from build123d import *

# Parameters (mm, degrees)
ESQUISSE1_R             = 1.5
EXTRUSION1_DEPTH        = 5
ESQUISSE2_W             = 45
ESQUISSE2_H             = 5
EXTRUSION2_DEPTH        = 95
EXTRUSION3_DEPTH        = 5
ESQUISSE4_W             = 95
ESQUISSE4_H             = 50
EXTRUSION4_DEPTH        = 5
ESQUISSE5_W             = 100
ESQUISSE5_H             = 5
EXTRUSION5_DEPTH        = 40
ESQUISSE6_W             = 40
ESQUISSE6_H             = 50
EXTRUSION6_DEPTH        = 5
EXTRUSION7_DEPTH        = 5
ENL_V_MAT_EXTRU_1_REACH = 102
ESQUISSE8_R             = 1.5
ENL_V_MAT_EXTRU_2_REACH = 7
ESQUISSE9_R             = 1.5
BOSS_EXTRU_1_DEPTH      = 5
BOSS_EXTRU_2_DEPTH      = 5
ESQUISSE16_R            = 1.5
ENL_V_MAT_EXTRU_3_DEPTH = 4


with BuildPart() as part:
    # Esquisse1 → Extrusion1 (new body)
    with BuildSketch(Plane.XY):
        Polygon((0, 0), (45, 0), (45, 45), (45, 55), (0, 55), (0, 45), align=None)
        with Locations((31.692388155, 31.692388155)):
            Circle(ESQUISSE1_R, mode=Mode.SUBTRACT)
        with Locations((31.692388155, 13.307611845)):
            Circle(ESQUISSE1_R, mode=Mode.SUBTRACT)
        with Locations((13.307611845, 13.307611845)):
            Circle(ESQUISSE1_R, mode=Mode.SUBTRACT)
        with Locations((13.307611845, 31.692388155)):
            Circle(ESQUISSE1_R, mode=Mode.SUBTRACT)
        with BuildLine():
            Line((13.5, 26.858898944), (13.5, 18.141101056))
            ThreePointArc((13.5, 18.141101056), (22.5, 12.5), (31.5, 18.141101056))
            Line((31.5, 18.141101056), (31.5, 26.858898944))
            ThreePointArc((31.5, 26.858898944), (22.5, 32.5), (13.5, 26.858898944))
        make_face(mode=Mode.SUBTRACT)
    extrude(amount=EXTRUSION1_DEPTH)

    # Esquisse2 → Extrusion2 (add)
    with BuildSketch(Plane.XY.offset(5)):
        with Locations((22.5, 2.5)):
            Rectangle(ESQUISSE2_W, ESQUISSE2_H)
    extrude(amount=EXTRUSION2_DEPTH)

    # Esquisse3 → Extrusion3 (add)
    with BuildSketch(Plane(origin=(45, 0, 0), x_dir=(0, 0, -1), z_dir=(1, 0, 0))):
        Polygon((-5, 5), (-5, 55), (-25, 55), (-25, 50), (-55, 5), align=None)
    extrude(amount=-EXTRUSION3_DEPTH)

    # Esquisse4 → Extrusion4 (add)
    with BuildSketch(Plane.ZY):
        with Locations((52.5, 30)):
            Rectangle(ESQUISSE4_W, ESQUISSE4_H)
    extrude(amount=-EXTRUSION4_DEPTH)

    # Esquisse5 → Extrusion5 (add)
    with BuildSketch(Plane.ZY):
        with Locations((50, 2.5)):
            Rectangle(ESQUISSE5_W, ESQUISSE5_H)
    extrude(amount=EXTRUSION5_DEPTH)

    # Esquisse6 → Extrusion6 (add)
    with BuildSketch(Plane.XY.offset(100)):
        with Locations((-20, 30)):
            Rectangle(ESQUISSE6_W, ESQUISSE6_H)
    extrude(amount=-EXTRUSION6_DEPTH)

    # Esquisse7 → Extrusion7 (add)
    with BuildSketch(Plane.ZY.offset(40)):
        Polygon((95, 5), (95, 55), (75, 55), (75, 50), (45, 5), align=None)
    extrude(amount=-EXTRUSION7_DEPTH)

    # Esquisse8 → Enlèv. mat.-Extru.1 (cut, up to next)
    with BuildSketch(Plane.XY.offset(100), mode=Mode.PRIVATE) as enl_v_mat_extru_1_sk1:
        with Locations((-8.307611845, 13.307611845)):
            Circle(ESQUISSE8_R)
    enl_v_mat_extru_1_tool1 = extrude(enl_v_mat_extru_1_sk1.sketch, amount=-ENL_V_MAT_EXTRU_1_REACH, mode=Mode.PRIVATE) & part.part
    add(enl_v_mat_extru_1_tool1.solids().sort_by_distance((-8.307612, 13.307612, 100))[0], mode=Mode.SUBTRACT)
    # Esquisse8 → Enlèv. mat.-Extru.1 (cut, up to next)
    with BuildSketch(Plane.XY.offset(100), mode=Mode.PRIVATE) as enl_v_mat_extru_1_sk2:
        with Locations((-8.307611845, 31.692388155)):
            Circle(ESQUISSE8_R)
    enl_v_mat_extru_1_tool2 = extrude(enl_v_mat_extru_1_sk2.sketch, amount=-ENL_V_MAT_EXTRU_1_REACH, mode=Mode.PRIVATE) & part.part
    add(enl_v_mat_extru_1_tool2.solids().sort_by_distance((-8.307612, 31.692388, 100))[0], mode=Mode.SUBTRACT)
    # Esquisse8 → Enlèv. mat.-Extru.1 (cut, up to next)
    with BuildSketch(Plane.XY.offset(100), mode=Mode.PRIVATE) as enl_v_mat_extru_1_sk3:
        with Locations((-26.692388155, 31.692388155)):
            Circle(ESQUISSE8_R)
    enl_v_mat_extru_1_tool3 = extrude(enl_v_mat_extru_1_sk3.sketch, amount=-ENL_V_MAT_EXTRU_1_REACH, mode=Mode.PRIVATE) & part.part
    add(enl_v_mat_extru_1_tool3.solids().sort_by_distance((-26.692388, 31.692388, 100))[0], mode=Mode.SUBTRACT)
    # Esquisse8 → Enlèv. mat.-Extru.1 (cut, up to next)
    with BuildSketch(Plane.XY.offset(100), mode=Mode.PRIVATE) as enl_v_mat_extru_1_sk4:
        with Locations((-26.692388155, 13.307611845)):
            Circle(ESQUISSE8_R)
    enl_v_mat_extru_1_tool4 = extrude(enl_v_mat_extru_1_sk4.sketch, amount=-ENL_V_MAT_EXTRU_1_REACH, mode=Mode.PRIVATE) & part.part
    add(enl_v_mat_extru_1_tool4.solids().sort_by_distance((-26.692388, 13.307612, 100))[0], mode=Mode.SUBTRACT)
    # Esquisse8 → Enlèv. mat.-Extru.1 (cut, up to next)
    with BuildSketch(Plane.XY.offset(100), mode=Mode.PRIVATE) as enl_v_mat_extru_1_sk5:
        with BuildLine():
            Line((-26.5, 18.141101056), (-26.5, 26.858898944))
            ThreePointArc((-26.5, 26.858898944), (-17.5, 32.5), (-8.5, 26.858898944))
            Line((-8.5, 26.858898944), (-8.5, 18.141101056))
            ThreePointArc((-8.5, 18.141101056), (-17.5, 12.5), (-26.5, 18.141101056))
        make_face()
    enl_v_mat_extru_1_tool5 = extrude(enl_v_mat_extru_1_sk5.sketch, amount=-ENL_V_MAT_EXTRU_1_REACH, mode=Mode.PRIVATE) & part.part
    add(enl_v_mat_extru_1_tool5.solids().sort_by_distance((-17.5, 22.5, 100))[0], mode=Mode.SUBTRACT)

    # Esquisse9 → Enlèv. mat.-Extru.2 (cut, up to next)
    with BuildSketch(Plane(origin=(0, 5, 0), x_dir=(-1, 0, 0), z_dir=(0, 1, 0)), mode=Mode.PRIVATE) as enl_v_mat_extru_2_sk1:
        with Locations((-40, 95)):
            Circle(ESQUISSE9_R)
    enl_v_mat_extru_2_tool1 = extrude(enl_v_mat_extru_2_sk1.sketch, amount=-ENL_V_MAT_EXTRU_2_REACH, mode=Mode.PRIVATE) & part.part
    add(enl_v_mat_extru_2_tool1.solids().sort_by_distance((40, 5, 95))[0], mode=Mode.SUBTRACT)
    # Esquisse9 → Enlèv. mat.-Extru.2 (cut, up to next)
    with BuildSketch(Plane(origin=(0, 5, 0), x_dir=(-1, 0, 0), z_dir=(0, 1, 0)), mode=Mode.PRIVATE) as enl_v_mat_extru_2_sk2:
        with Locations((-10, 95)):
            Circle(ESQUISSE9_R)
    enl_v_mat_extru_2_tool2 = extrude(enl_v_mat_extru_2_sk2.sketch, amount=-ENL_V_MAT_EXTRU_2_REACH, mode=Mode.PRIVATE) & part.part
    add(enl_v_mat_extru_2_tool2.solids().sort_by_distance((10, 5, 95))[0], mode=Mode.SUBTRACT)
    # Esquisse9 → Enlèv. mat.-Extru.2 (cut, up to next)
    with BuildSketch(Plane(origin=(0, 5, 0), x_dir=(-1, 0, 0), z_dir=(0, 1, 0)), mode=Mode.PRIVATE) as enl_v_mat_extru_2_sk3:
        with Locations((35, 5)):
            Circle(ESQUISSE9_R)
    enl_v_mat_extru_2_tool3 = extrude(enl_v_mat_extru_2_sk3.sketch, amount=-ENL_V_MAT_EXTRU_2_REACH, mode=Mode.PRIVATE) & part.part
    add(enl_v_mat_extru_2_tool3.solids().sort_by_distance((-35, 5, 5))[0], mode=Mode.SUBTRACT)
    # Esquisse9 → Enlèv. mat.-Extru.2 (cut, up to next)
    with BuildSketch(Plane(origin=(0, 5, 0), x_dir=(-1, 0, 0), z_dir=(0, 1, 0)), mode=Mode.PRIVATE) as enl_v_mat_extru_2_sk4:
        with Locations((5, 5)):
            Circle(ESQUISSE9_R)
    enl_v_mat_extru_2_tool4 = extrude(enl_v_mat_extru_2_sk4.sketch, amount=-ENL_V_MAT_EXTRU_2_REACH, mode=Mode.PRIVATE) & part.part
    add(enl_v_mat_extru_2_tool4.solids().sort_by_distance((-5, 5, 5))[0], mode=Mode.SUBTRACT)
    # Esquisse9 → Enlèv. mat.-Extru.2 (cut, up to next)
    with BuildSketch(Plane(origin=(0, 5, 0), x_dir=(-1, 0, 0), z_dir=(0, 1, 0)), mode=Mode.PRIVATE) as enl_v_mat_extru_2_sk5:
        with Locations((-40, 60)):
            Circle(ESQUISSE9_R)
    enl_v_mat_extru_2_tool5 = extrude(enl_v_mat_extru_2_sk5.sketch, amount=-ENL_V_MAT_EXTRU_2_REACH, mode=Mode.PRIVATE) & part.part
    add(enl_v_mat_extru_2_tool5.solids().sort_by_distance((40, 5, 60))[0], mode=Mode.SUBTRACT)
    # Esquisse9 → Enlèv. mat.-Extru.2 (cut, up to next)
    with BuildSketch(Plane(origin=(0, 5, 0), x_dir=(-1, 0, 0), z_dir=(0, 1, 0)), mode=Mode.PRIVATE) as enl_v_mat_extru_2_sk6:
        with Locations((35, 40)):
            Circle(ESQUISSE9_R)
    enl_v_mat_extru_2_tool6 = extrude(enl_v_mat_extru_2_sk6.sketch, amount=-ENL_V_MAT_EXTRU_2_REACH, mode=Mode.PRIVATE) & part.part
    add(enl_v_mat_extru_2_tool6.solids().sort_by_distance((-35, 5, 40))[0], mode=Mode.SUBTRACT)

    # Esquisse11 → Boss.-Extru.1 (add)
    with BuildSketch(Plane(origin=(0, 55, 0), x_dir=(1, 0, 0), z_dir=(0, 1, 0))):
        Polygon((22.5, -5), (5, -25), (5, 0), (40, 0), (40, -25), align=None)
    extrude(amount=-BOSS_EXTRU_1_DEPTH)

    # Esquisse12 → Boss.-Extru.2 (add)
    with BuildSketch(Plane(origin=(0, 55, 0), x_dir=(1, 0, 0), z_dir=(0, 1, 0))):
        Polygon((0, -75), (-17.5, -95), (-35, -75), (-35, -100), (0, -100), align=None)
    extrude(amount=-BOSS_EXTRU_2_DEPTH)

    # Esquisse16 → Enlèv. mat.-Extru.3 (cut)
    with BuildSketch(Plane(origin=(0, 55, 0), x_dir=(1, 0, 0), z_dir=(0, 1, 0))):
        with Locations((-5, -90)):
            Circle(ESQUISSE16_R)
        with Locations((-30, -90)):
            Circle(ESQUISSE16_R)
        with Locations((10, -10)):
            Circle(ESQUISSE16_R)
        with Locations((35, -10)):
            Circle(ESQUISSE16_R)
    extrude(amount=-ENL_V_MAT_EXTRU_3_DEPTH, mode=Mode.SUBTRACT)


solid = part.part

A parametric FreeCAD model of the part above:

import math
import FreeCAD as App
import Part
import Sketcher

V = App.Vector


def add_polygon(sketch, points):
    """Adds a closed chain of lines whose ends are joined by coincident constraints."""
    first, n = sketch.GeometryCount, len(points)
    for a, b in zip(points, points[1:] + points[:1]):
        sketch.addGeometry(Part.LineSegment(App.Vector(*a, 0), App.Vector(*b, 0)), False)
    for i in range(n):
        sketch.addConstraint(Sketcher.Constraint("Coincident", first + i, 2, first + (i + 1) % n, 1))

doc = App.newDocument("Part")
body = doc.addObject("PartDesign::Body", "Body")

sketch1 = body.newObject("Sketcher::SketchObject", "Sketch")
sketch1.AttachmentSupport = (doc.getObject("XY_Plane"), [""])
sketch1.MapMode = "FlatFace"
add_polygon(sketch1, [(0, 0), (45, 0), (45, 55), (0, 55)])
sketch1.addGeometry(Part.Circle(V(13.3, 13.3, 0), V(0, 0, 1), 1.5), False)
sketch1.addGeometry(Part.Circle(V(31.7, 13.3, 0), V(0, 0, 1), 1.5), False)
sketch1.addGeometry(Part.LineSegment(V(13.5, 18.1, 0), V(13.5, 26.9, 0)), False)
sketch1.addGeometry(Part.ArcOfCircle(Part.Circle(V(22.5, 22.5, 0), V(0, 0, 1), 10), math.radians(26), math.radians(154)), False)
sketch1.addGeometry(Part.LineSegment(V(31.5, 26.9, 0), V(31.5, 18.1, 0)), False)
sketch1.addGeometry(Part.ArcOfCircle(Part.Circle(V(22.5, 22.5, 0), V(0, 0, 1), 10), math.radians(-154), math.radians(-26)), False)
sketch1.addGeometry(Part.Circle(V(13.3, 31.7, 0), V(0, 0, 1), 1.5), False)
sketch1.addGeometry(Part.Circle(V(31.7, 31.7, 0), V(0, 0, 1), 1.5), False)
sketch1.addConstraint([
    Sketcher.Constraint("Coincident", 6, 2, 7, 2),
    Sketcher.Constraint("Coincident", 7, 1, 8, 1),
    Sketcher.Constraint("Coincident", 8, 2, 9, 2),
    Sketcher.Constraint("Coincident", 9, 1, 6, 1),
    Sketcher.Constraint("Horizontal", 0),
    Sketcher.Constraint("Vertical", 1),
    Sketcher.Constraint("Horizontal", 2),
    Sketcher.Constraint("Vertical", 3),
    Sketcher.Constraint("Vertical", 6),
    Sketcher.Constraint("Vertical", 8),
    Sketcher.Constraint("Coincident", 3, 2, -1, 1),
    Sketcher.Constraint("Coincident", 9, 3, 7, 3),
    Sketcher.Constraint("Equal", 4, 5),
    Sketcher.Constraint("Equal", 7, 9),
    Sketcher.Constraint("Equal", 5, 10),
    Sketcher.Constraint("Equal", 10, 11),
    Sketcher.Constraint("Horizontal", 4, 3, 5, 3),
    Sketcher.Constraint("Horizontal", 10, 3, 11, 3),
    Sketcher.Constraint("Horizontal", 6, 2, 7, 1),
    Sketcher.Constraint("Vertical", 4, 3, 10, 3),
    Sketcher.Constraint("Vertical", 5, 3, 11, 3),
    Sketcher.Constraint("Diameter", 4, 3.0),
    Sketcher.Constraint("Radius", 7, 10.0),
    Sketcher.Constraint("DistanceX", 0, 1, 0, 2, 45.0),
    Sketcher.Constraint("DistanceY", 1, 1, 1, 2, 55.0),
    Sketcher.Constraint("DistanceX", 6, 2, 7, 3, 9.0),
    Sketcher.Constraint("DistanceX", -1, 1, 7, 3, 22.5),
    Sketcher.Constraint("DistanceY", -1, 1, 7, 3, 22.5),
    Sketcher.Constraint("DistanceX", -1, 1, 4, 3, 13.307612),
    Sketcher.Constraint("DistanceY", -1, 1, 4, 3, 13.307612),
    Sketcher.Constraint("DistanceX", -1, 1, 5, 3, 31.692388),
    Sketcher.Constraint("DistanceY", -1, 1, 10, 3, 31.692388),
])
pad1 = body.newObject("PartDesign::Pad", "Pad")
pad1.Profile = sketch1
pad1.Length = 5

sketch2 = body.newObject("Sketcher::SketchObject", "Sketch001")
sketch2.AttachmentSupport = (doc.getObject("XY_Plane"), [""])
sketch2.MapMode = "FlatFace"
sketch2.AttachmentOffset = App.Placement(V(0, 0, 5), App.Rotation())
add_polygon(sketch2, [(0, 5), (0, 0), (45, 0), (45, 5)])
sketch2.addConstraint([
    Sketcher.Constraint("Vertical", 0),
    Sketcher.Constraint("Horizontal", 1),
    Sketcher.Constraint("Vertical", 2),
    Sketcher.Constraint("Horizontal", 3),
    Sketcher.Constraint("Coincident", 0, 2, -1, 1),
    Sketcher.Constraint("DistanceX", 1, 1, 1, 2, 45.0),
    Sketcher.Constraint("DistanceY", 0, 2, 0, 1, 5.0),
])
pad2 = body.newObject("PartDesign::Pad", "Pad001")
pad2.Profile = sketch2
pad2.Length = 95

sketch3 = body.newObject("Sketcher::SketchObject", "Sketch002")
sketch3.AttachmentSupport = (doc.getObject("YZ_Plane"), [""])
sketch3.MapMode = "FlatFace"
sketch3.AttachmentOffset = App.Placement(V(0, 0, 45), App.Rotation())
add_polygon(sketch3, [(5, 5), (55, 5), (55, 25), (50, 25), (5, 55)])
sketch3.addConstraint([
    Sketcher.Constraint("Horizontal", 0),
    Sketcher.Constraint("Vertical", 1),
    Sketcher.Constraint("Horizontal", 2),
    Sketcher.Constraint("Vertical", 4),
    Sketcher.Constraint("Equal", 0, 4),
    Sketcher.Constraint("DistanceX", 0, 1, 0, 2, 50.0),
    Sketcher.Constraint("DistanceX", 2, 2, 2, 1, 5.0),
    Sketcher.Constraint("DistanceY", 1, 1, 1, 2, 20.0),
    Sketcher.Constraint("DistanceX", -1, 1, 0, 2, 55.0),
    Sketcher.Constraint("DistanceY", -1, 1, 0, 2, 5.0),
])
pad3 = body.newObject("PartDesign::Pad", "Pad002")
pad3.Profile = sketch3
pad3.Length = 5
pad3.Reversed = True

sketch4 = body.newObject("Sketcher::SketchObject", "Sketch003")
sketch4.AttachmentSupport = (doc.getObject("YZ_Plane"), [""])
sketch4.MapMode = "FlatFace"
add_polygon(sketch4, [(55, 5), (5, 5), (5, 100), (55, 100)])
sketch4.addConstraint([
    Sketcher.Constraint("Horizontal", 0),
    Sketcher.Constraint("Vertical", 1),
    Sketcher.Constraint("Horizontal", 2),
    Sketcher.Constraint("Vertical", 3),
    Sketcher.Constraint("DistanceX", 0, 2, 0, 1, 50.0),
    Sketcher.Constraint("DistanceY", 1, 1, 1, 2, 95.0),
    Sketcher.Constraint("DistanceX", -1, 1, 0, 2, 5.0),
    Sketcher.Constraint("DistanceY", -1, 1, 0, 2, 5.0),
])
pad4 = body.newObject("PartDesign::Pad", "Pad003")
pad4.Profile = sketch4
pad4.Length = 5

sketch5 = body.newObject("Sketcher::SketchObject", "Sketch004")
sketch5.AttachmentSupport = (doc.getObject("YZ_Plane"), [""])
sketch5.MapMode = "FlatFace"
add_polygon(sketch5, [(5, 0), (0, 0), (0, 100), (5, 100)])
sketch5.addConstraint([
    Sketcher.Constraint("Horizontal", 0),
    Sketcher.Constraint("Vertical", 1),
    Sketcher.Constraint("Horizontal", 2),
    Sketcher.Constraint("Vertical", 3),
    Sketcher.Constraint("Coincident", 0, 2, -1, 1),
    Sketcher.Constraint("DistanceX", 0, 2, 0, 1, 5.0),
    Sketcher.Constraint("DistanceY", 1, 1, 1, 2, 100.0),
])
pad5 = body.newObject("PartDesign::Pad", "Pad004")
pad5.Profile = sketch5
pad5.Length = 40
pad5.Reversed = True

sketch6 = body.newObject("Sketcher::SketchObject", "Sketch005")
sketch6.AttachmentSupport = (doc.getObject("XY_Plane"), [""])
sketch6.MapMode = "FlatFace"
sketch6.AttachmentOffset = App.Placement(V(0, 0, 100), App.Rotation())
add_polygon(sketch6, [(-40, 55), (-40, 5), (0, 5), (0, 55)])
sketch6.addConstraint([
    Sketcher.Constraint("Vertical", 0),
    Sketcher.Constraint("Horizontal", 1),
    Sketcher.Constraint("Vertical", 2),
    Sketcher.Constraint("Horizontal", 3),
    Sketcher.Constraint("PointOnObject", 1, 2, -2),
    Sketcher.Constraint("DistanceX", 1, 1, 1, 2, 40.0),
    Sketcher.Constraint("DistanceY", 0, 2, 0, 1, 50.0),
    Sketcher.Constraint("DistanceY", -1, 1, 0, 2, 5.0),
])
pad6 = body.newObject("PartDesign::Pad", "Pad005")
pad6.Profile = sketch6
pad6.Length = 5
pad6.Reversed = True

sketch7 = body.newObject("Sketcher::SketchObject", "Sketch006")
sketch7.AttachmentSupport = (doc.getObject("YZ_Plane"), [""])
sketch7.MapMode = "FlatFace"
sketch7.AttachmentOffset = App.Placement(V(0, 0, -40), App.Rotation())
add_polygon(sketch7, [(5, 95), (55, 95), (55, 75), (50, 75), (5, 45)])
sketch7.addConstraint([
    Sketcher.Constraint("Horizontal", 0),
    Sketcher.Constraint("Vertical", 1),
    Sketcher.Constraint("Horizontal", 2),
    Sketcher.Constraint("Vertical", 4),
    Sketcher.Constraint("Equal", 0, 4),
    Sketcher.Constraint("DistanceX", 0, 1, 0, 2, 50.0),
    Sketcher.Constraint("DistanceX", 2, 2, 2, 1, 5.0),
    Sketcher.Constraint("DistanceY", 1, 2, 1, 1, 20.0),
    Sketcher.Constraint("DistanceX", -1, 1, 0, 2, 55.0),
    Sketcher.Constraint("DistanceY", -1, 1, 0, 2, 95.0),
])
pad7 = body.newObject("PartDesign::Pad", "Pad006")
pad7.Profile = sketch7
pad7.Length = 5

sketch8 = body.newObject("Sketcher::SketchObject", "Sketch007")
sketch8.AttachmentSupport = (doc.getObject("XY_Plane"), [""])
sketch8.MapMode = "FlatFace"
sketch8.AttachmentOffset = App.Placement(V(0, 0, 100), App.Rotation())
sketch8.addGeometry(Part.Circle(V(-8.3, 13.3, 0), V(0, 0, 1), 1.5), False)
sketch8.addConstraint([
    Sketcher.Constraint("Diameter", 0, 3.0),
    Sketcher.Constraint("DistanceX", 0, 3, -1, 1, 8.307612),
    Sketcher.Constraint("DistanceY", -1, 1, 0, 3, 13.307612),
])
pocket1 = body.newObject("PartDesign::Pocket", "Pocket")
pocket1.Profile = sketch8
pocket1.Type = "UpToFirst"

sketch9 = body.newObject("Sketcher::SketchObject", "Sketch008")
sketch9.AttachmentSupport = (doc.getObject("XY_Plane"), [""])
sketch9.MapMode = "FlatFace"
sketch9.AttachmentOffset = App.Placement(V(0, 0, 100), App.Rotation())
sketch9.addGeometry(Part.Circle(V(-8.3, 31.7, 0), V(0, 0, 1), 1.5), False)
sketch9.addConstraint([
    Sketcher.Constraint("Diameter", 0, 3.0),
    Sketcher.Constraint("DistanceX", 0, 3, -1, 1, 8.307612),
    Sketcher.Constraint("DistanceY", -1, 1, 0, 3, 31.692388),
])
pocket2 = body.newObject("PartDesign::Pocket", "Pocket001")
pocket2.Profile = sketch9
pocket2.Type = "UpToFirst"

sketch10 = body.newObject("Sketcher::SketchObject", "Sketch009")
sketch10.AttachmentSupport = (doc.getObject("XY_Plane"), [""])
sketch10.MapMode = "FlatFace"
sketch10.AttachmentOffset = App.Placement(V(0, 0, 100), App.Rotation())
sketch10.addGeometry(Part.Circle(V(-26.7, 31.7, 0), V(0, 0, 1), 1.5), False)
sketch10.addConstraint([
    Sketcher.Constraint("Diameter", 0, 3.0),
    Sketcher.Constraint("DistanceX", 0, 3, -1, 1, 26.692388),
    Sketcher.Constraint("DistanceY", -1, 1, 0, 3, 31.692388),
])
pocket3 = body.newObject("PartDesign::Pocket", "Pocket002")
pocket3.Profile = sketch10
pocket3.Type = "UpToFirst"

sketch11 = body.newObject("Sketcher::SketchObject", "Sketch010")
sketch11.AttachmentSupport = (doc.getObject("XY_Plane"), [""])
sketch11.MapMode = "FlatFace"
sketch11.AttachmentOffset = App.Placement(V(0, 0, 100), App.Rotation())
sketch11.addGeometry(Part.Circle(V(-26.7, 13.3, 0), V(0, 0, 1), 1.5), False)
sketch11.addConstraint([
    Sketcher.Constraint("Diameter", 0, 3.0),
    Sketcher.Constraint("DistanceX", 0, 3, -1, 1, 26.692388),
    Sketcher.Constraint("DistanceY", -1, 1, 0, 3, 13.307612),
])
pocket4 = body.newObject("PartDesign::Pocket", "Pocket003")
pocket4.Profile = sketch11
pocket4.Type = "UpToFirst"

sketch12 = body.newObject("Sketcher::SketchObject", "Sketch011")
sketch12.AttachmentSupport = (doc.getObject("XY_Plane"), [""])
sketch12.MapMode = "FlatFace"
sketch12.AttachmentOffset = App.Placement(V(0, 0, 100), App.Rotation())
sketch12.addGeometry([
    Part.LineSegment(V(-26, 27, 0), V(-26, 18, 0)),
    Part.ArcOfCircle(Part.Circle(V(-18, 22, 0), V(0, 0, 1), 10), math.radians(-154), math.radians(-26)),
    Part.LineSegment(V(-8, 18, 0), V(-8, 27, 0)),
    Part.ArcOfCircle(Part.Circle(V(-18, 22, 0), V(0, 0, 1), 10), math.radians(26), math.radians(154)),
], False)
sketch12.addConstraint([
    Sketcher.Constraint("Coincident", 0, 2, 1, 1),
    Sketcher.Constraint("Coincident", 1, 2, 2, 1),
    Sketcher.Constraint("Coincident", 2, 2, 3, 1),
    Sketcher.Constraint("Coincident", 3, 2, 0, 1),
    Sketcher.Constraint("Vertical", 0),
    Sketcher.Constraint("Vertical", 2),
    Sketcher.Constraint("Coincident", 3, 3, 1, 3),
    Sketcher.Constraint("Equal", 1, 3),
    Sketcher.Constraint("Horizontal", 0, 2, 1, 2),
    Sketcher.Constraint("Radius", 1, 10.0),
    Sketcher.Constraint("DistanceX", 0, 2, 1, 3, 9.0),
    Sketcher.Constraint("DistanceX", 1, 3, -1, 1, 17.5),
    Sketcher.Constraint("DistanceY", -1, 1, 1, 3, 22.5),
])
pocket5 = body.newObject("PartDesign::Pocket", "Pocket004")
pocket5.Profile = sketch12
pocket5.Type = "UpToFirst"

sketch13 = body.newObject("Sketcher::SketchObject", "Sketch012")
sketch13.AttachmentSupport = (doc.getObject("XZ_Plane"), [""])
sketch13.MapMode = "FlatFace"
sketch13.AttachmentOffset = App.Placement(V(0, 0, -5), App.Rotation())
sketch13.addGeometry(Part.Circle(V(40, 95, 0), V(0, 0, 1), 1.5), False)
sketch13.addConstraint([
    Sketcher.Constraint("Diameter", 0, 3.0),
    Sketcher.Constraint("DistanceX", -1, 1, 0, 3, 40.0),
    Sketcher.Constraint("DistanceY", -1, 1, 0, 3, 95.0),
])
pocket6 = body.newObject("PartDesign::Pocket", "Pocket005")
pocket6.Profile = sketch13
pocket6.Type = "UpToFirst"
pocket6.Reversed = True

sketch14 = body.newObject("Sketcher::SketchObject", "Sketch013")
sketch14.AttachmentSupport = (doc.getObject("XZ_Plane"), [""])
sketch14.MapMode = "FlatFace"
sketch14.AttachmentOffset = App.Placement(V(0, 0, -5), App.Rotation())
sketch14.addGeometry(Part.Circle(V(10, 95, 0), V(0, 0, 1), 1.5), False)
sketch14.addConstraint([
    Sketcher.Constraint("Diameter", 0, 3.0),
    Sketcher.Constraint("DistanceX", -1, 1, 0, 3, 10.0),
    Sketcher.Constraint("DistanceY", -1, 1, 0, 3, 95.0),
])
pocket7 = body.newObject("PartDesign::Pocket", "Pocket006")
pocket7.Profile = sketch14
pocket7.Type = "UpToFirst"
pocket7.Reversed = True

sketch15 = body.newObject("Sketcher::SketchObject", "Sketch014")
sketch15.AttachmentSupport = (doc.getObject("XZ_Plane"), [""])
sketch15.MapMode = "FlatFace"
sketch15.AttachmentOffset = App.Placement(V(0, 0, -5), App.Rotation())
sketch15.addGeometry(Part.Circle(V(-35, 5, 0), V(0, 0, 1), 1.5), False)
sketch15.addConstraint([
    Sketcher.Constraint("Diameter", 0, 3.0),
    Sketcher.Constraint("DistanceX", 0, 3, -1, 1, 35.0),
    Sketcher.Constraint("DistanceY", -1, 1, 0, 3, 5.0),
])
pocket8 = body.newObject("PartDesign::Pocket", "Pocket007")
pocket8.Profile = sketch15
pocket8.Type = "UpToFirst"
pocket8.Reversed = True

sketch16 = body.newObject("Sketcher::SketchObject", "Sketch015")
sketch16.AttachmentSupport = (doc.getObject("XZ_Plane"), [""])
sketch16.MapMode = "FlatFace"
sketch16.AttachmentOffset = App.Placement(V(0, 0, -5), App.Rotation())
sketch16.addGeometry(Part.Circle(V(-5, 5, 0), V(0, 0, 1), 1.5), False)
sketch16.addConstraint([
    Sketcher.Constraint("Diameter", 0, 3.0),
    Sketcher.Constraint("DistanceX", 0, 3, -1, 1, 5.0),
    Sketcher.Constraint("DistanceY", -1, 1, 0, 3, 5.0),
])
pocket9 = body.newObject("PartDesign::Pocket", "Pocket008")
pocket9.Profile = sketch16
pocket9.Type = "UpToFirst"
pocket9.Reversed = True

sketch17 = body.newObject("Sketcher::SketchObject", "Sketch016")
sketch17.AttachmentSupport = (doc.getObject("XZ_Plane"), [""])
sketch17.MapMode = "FlatFace"
sketch17.AttachmentOffset = App.Placement(V(0, 0, -5), App.Rotation())
sketch17.addGeometry(Part.Circle(V(40, 60, 0), V(0, 0, 1), 1.5), False)
sketch17.addConstraint([
    Sketcher.Constraint("Diameter", 0, 3.0),
    Sketcher.Constraint("DistanceX", -1, 1, 0, 3, 40.0),
    Sketcher.Constraint("DistanceY", -1, 1, 0, 3, 60.0),
])
pocket10 = body.newObject("PartDesign::Pocket", "Pocket009")
pocket10.Profile = sketch17
pocket10.Type = "UpToFirst"
pocket10.Reversed = True

sketch18 = body.newObject("Sketcher::SketchObject", "Sketch017")
sketch18.AttachmentSupport = (doc.getObject("XZ_Plane"), [""])
sketch18.MapMode = "FlatFace"
sketch18.AttachmentOffset = App.Placement(V(0, 0, -5), App.Rotation())
sketch18.addGeometry(Part.Circle(V(-35, 40, 0), V(0, 0, 1), 1.5), False)
sketch18.addConstraint([
    Sketcher.Constraint("Diameter", 0, 3.0),
    Sketcher.Constraint("DistanceX", 0, 3, -1, 1, 35.0),
    Sketcher.Constraint("DistanceY", -1, 1, 0, 3, 40.0),
])
pocket11 = body.newObject("PartDesign::Pocket", "Pocket010")
pocket11.Profile = sketch18
pocket11.Type = "UpToFirst"
pocket11.Reversed = True

sketch19 = body.newObject("Sketcher::SketchObject", "Sketch018")
sketch19.AttachmentSupport = (doc.getObject("XZ_Plane"), [""])
sketch19.MapMode = "FlatFace"
sketch19.AttachmentOffset = App.Placement(V(0, 0, -55), App.Rotation())
add_polygon(sketch19, [(5, 25), (22, 5), (40, 25), (40, 0), (5, 0)])
sketch19.addConstraint([
    Sketcher.Constraint("Vertical", 2),
    Sketcher.Constraint("Horizontal", 3),
    Sketcher.Constraint("Vertical", 4),
    Sketcher.Constraint("PointOnObject", 2, 2, -1),
    Sketcher.Constraint("Horizontal", 1, 2, 4, 2),
    Sketcher.Constraint("Equal", 0, 1),
    Sketcher.Constraint("DistanceX", 3, 2, 3, 1, 35.0),
    Sketcher.Constraint("DistanceY", 2, 2, 2, 1, 25.0),
    Sketcher.Constraint("DistanceY", -1, 1, 0, 2, 5.0),
    Sketcher.Constraint("DistanceX", -1, 1, 1, 2, 40.0),
])
pad8 = body.newObject("PartDesign::Pad", "Pad007")
pad8.Profile = sketch19
pad8.Length = 5

sketch20 = body.newObject("Sketcher::SketchObject", "Sketch019")
sketch20.AttachmentSupport = (doc.getObject("XZ_Plane"), [""])
sketch20.MapMode = "FlatFace"
sketch20.AttachmentOffset = App.Placement(V(0, 0, -55), App.Rotation())
add_polygon(sketch20, [(0, 75), (-18, 95), (-35, 75), (-35, 100), (0, 100)])
sketch20.addConstraint([
    Sketcher.Constraint("Vertical", 2),
    Sketcher.Constraint("Horizontal", 3),
    Sketcher.Constraint("Vertical", 4),
    Sketcher.Constraint("PointOnObject", 3, 2, -2),
    Sketcher.Constraint("Horizontal", 1, 2, 4, 2),
    Sketcher.Constraint("Equal", 0, 1),
    Sketcher.Constraint("DistanceX", 3, 1, 3, 2, 35.0),
    Sketcher.Constraint("DistanceY", 2, 1, 2, 2, 25.0),
    Sketcher.Constraint("DistanceY", -1, 1, 0, 2, 95.0),
    Sketcher.Constraint("DistanceY", -1, 1, 1, 2, 75.0),
])
pad9 = body.newObject("PartDesign::Pad", "Pad008")
pad9.Profile = sketch20
pad9.Length = 5

sketch21 = body.newObject("Sketcher::SketchObject", "Sketch020")
sketch21.AttachmentSupport = (doc.getObject("XZ_Plane"), [""])
sketch21.MapMode = "FlatFace"
sketch21.AttachmentOffset = App.Placement(V(0, 0, -55), App.Rotation())
sketch21.addGeometry([
    Part.Circle(V(-5, 90, 0), V(0, 0, 1), 1.5),
    Part.Circle(V(-30, 90, 0), V(0, 0, 1), 1.5),
    Part.Circle(V(10, 10, 0), V(0, 0, 1), 1.5),
    Part.Circle(V(35, 10, 0), V(0, 0, 1), 1.5),
], False)
sketch21.addConstraint([
    Sketcher.Constraint("Equal", 0, 1),
    Sketcher.Constraint("Equal", 1, 2),
    Sketcher.Constraint("Equal", 2, 3),
    Sketcher.Constraint("Horizontal", 0, 3, 1, 3),
    Sketcher.Constraint("Horizontal", 2, 3, 3, 3),
    Sketcher.Constraint("Diameter", 0, 3.0),
    Sketcher.Constraint("DistanceX", 0, 3, -1, 1, 5.0),
    Sketcher.Constraint("DistanceY", -1, 1, 0, 3, 90.0),
    Sketcher.Constraint("DistanceX", 1, 3, -1, 1, 30.0),
    Sketcher.Constraint("DistanceX", -1, 1, 2, 3, 10.0),
    Sketcher.Constraint("DistanceY", -1, 1, 2, 3, 10.0),
    Sketcher.Constraint("DistanceX", -1, 1, 3, 3, 35.0),
])
pocket12 = body.newObject("PartDesign::Pocket", "Pocket011")
pocket12.Profile = sketch21
pocket12.Length = 4
pocket12.Reversed = True

doc.recompute()
